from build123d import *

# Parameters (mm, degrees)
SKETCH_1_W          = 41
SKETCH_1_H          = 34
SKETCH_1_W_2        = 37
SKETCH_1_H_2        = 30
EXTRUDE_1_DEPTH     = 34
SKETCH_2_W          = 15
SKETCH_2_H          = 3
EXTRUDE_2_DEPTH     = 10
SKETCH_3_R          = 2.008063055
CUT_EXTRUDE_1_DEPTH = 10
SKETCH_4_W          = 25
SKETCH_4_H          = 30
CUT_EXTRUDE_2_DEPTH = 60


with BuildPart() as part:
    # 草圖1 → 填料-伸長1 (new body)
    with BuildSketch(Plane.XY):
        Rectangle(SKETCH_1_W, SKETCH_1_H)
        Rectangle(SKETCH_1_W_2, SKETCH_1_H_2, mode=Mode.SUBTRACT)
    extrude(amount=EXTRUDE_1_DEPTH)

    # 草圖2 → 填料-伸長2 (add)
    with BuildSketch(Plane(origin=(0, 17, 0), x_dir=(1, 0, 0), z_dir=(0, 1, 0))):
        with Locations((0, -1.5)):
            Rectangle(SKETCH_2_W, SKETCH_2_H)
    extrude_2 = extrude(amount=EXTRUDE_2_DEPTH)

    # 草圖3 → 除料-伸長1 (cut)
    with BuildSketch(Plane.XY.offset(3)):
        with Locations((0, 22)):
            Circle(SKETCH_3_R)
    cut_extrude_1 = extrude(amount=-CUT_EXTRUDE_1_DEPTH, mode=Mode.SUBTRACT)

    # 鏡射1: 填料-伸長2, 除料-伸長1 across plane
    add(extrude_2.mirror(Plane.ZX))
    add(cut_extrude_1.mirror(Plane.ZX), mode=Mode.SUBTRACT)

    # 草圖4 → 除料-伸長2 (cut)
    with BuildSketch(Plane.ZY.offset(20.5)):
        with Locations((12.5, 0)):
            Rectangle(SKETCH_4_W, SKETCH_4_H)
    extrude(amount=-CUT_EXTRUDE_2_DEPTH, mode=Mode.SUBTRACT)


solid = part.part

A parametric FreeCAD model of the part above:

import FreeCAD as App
import Part
import Sketcher

V = App.Vector

doc = App.newDocument("Part")
params = doc.addObject("Spreadsheet::Sheet", "Params")
for row, (alias, value) in enumerate([
    ("sketch1_width", "41 mm"),
    ("sketch1_width2", "37 mm"),
    ("sketch1_height", "34 mm"),
    ("sketch1_height2", "30 mm"),
    ("pad1_length", "34 mm"),
    ("sketch2_width", "15 mm"),
    ("sketch2_height", "3 mm"),
    ("pad2_length", "10 mm"),
    ("pocket1_length", "10 mm"),
    ("sketch4_width", "30 mm"),
    ("sketch4_height", "25 mm"),
    ("pocket2_length", "60 mm"),
], start=1):
    params.set(f"A{row}", alias)
    params.set(f"B{row}", "=" + value)
    params.setAlias(f"B{row}", alias)

body = doc.addObject("PartDesign::Body", "Body")

# Sketch on XY plane
sketch1 = doc.addObject("Sketcher::SketchObject", "Sketch")
body.addObject(sketch1)
sketch1.AttachmentSupport = (doc.XY_Plane, [""])
sketch1.MapMode = "FlatFace"
sketch1.addGeometry([
    Part.LineSegment(V(-20, 17, 0), V(-20, -17, 0)),  # 0
    Part.LineSegment(V(-20, -17, 0), V(20, -17, 0)),  # 1
    Part.LineSegment(V(20, -17, 0), V(20, 17, 0)),  # 2
    Part.LineSegment(V(20, 17, 0), V(-20, 17, 0)),  # 3
    Part.LineSegment(V(18, -15, 0), V(-18, -15, 0)),  # 4
    Part.LineSegment(V(-18, -15, 0), V(-18, 15, 0)),  # 5
    Part.LineSegment(V(-18, 15, 0), V(18, 15, 0)),  # 6
    Part.LineSegment(V(18, 15, 0), V(18, -15, 0)),  # 7
], False)
sketch1.addConstraint([
    Sketcher.Constraint("Coincident", 0, 2, 1, 1),
    Sketcher.Constraint("Coincident", 1, 2, 2, 1),
    Sketcher.Constraint("Coincident", 2, 2, 3, 1),
    Sketcher.Constraint("Coincident", 3, 2, 0, 1),
    Sketcher.Constraint("Coincident", 4, 2, 5, 1),
    Sketcher.Constraint("Coincident", 5, 2, 6, 1),
    Sketcher.Constraint("Coincident", 6, 2, 7, 1),
    Sketcher.Constraint("Coincident", 7, 2, 4, 1),
    Sketcher.Constraint("Vertical", 0),
    Sketcher.Constraint("Horizontal", 1),
    Sketcher.Constraint("Vertical", 2),
    Sketcher.Constraint("Horizontal", 3),
    Sketcher.Constraint("Horizontal", 4),
    Sketcher.Constraint("Vertical", 5),
    Sketcher.Constraint("Horizontal", 6),
    Sketcher.Constraint("Vertical", 7),
    Sketcher.Constraint("Symmetric", 0, 2, 2, 2, -1, 1),
    Sketcher.Constraint("Symmetric", 4, 2, 6, 2, -1, 1),
    Sketcher.Constraint("DistanceX", 1, 1, 1, 2, 41.0),
    Sketcher.Constraint("DistanceX", 4, 2, 4, 1, 37.0),
    Sketcher.Constraint("DistanceY", 0, 2, 0, 1, 34.0),
    Sketcher.Constraint("DistanceY", 5, 1, 5, 2, 30.0),
])
sketch1.setExpression("Constraints[18]", "Params.sketch1_width")
sketch1.setExpression("Constraints[19]", "Params.sketch1_width2")
sketch1.setExpression("Constraints[20]", "Params.sketch1_height")
sketch1.setExpression("Constraints[21]", "Params.sketch1_height2")
pad1 = doc.addObject("PartDesign::Pad", "Pad")
body.addObject(pad1)
pad1.Profile = sketch1
pad1.setExpression("Length", "Params.pad1_length")

# Sketch on XZ plane
sketch2 = doc.addObject("Sketcher::SketchObject", "Sketch001")
body.addObject(sketch2)
sketch2.AttachmentSupport = (doc.XZ_Plane, [""])
sketch2.MapMode = "FlatFace"
sketch2.AttachmentOffset = App.Placement(V(0, 0, -17), App.Rotation())
sketch2.addGeometry([
    Part.LineSegment(V(-7.5, 0, 0), V(-7.5, 3, 0)),
    Part.LineSegment(V(-7.5, 3, 0), V(7.5, 3, 0)),
    Part.LineSegment(V(7.5, 3, 0), V(7.5, 0, 0)),
    Part.LineSegment(V(7.5, 0, 0), V(-7.5, 0, 0)),
], False)
sketch2.addConstraint([
    Sketcher.Constraint("Coincident", 0, 2, 1, 1),
    Sketcher.Constraint("Coincident", 1, 2, 2, 1),
    Sketcher.Constraint("Coincident", 2, 2, 3, 1),
    Sketcher.Constraint("Coincident", 3, 2, 0, 1),
    Sketcher.Constraint("Vertical", 0),
    Sketcher.Constraint("Horizontal", 1),
    Sketcher.Constraint("Vertical", 2),
    Sketcher.Constraint("Horizontal", 3),
    Sketcher.Constraint("Symmetric", 2, 2, 3, 2, -1, 1),
    Sketcher.Constraint("DistanceX", 1, 1, 1, 2, 15.0),
    Sketcher.Constraint("DistanceY", 0, 1, 0, 2, 3.0),
])
sketch2.setExpression("Constraints[9]", "Params.sketch2_width")
sketch2.setExpression("Constraints[10]", "Params.sketch2_height")
pad2 = doc.addObject("PartDesign::Pad", "Pad001")
body.addObject(pad2)
pad2.Profile = sketch2
pad2.setExpression("Length", "Params.pad2_length")
pad2.Reversed = True

# Sketch on XY plane
sketch3 = doc.addObject("Sketcher::SketchObject", "Sketch002")
body.addObject(sketch3)
sketch3.AttachmentSupport = (doc.XY_Plane, [""])
sketch3.MapMode = "FlatFace"
sketch3.AttachmentOffset = App.Placement(V(0, 0, 3), App.Rotation())
sketch3.addGeometry(Part.Circle(V(0, 22, 0), V(0, 0, 1), 2), False)
sketch3.addConstraint([
    Sketcher.Constraint("PointOnObject", 0, 3, -2),
    Sketcher.Constraint("DistanceY", -1, 1, 0, 3, 22.0),
    Sketcher.Constraint("Diameter", 0, 4.016126),
])
pocket1 = doc.addObject("PartDesign::Pocket", "Pocket")
body.addObject(pocket1)
pocket1.Profile = sketch3
pocket1.setExpression("Length", "Params.pocket1_length")
doc.recompute()

mirrored = doc.addObject("PartDesign::Mirrored", "Mirrored")
body.addObject(mirrored)
mirrored.Originals = [pad2, pocket1]
mirrored.MirrorPlane = (doc.XZ_Plane, [""])
body.Tip = mirrored

# Sketch on YZ plane
sketch4 = doc.addObject("Sketcher::SketchObject", "Sketch003")
body.addObject(sketch4)
sketch4.AttachmentSupport = (doc.YZ_Plane, [""])
sketch4.MapMode = "FlatFace"
sketch4.AttachmentOffset = App.Placement(V(0, 0, -20.5), App.Rotation())
sketch4.addGeometry([
    Part.LineSegment(V(15, 0, 0), V(-15, 0, 0)),
    Part.LineSegment(V(-15, 0, 0), V(-15, 25, 0)),
    Part.LineSegment(V(-15, 25, 0), V(15, 25, 0)),
    Part.LineSegment(V(15, 25, 0), V(15, 0, 0)),
], False)
sketch4.addConstraint([
    Sketcher.Constraint("Coincident", 0, 2, 1, 1),
    Sketcher.Constraint("Coincident", 1, 2, 2, 1),
    Sketcher.Constraint("Coincident", 2, 2, 3, 1),
    Sketcher.Constraint("Coincident", 3, 2, 0, 1),
    Sketcher.Constraint("Horizontal", 0),
    Sketcher.Constraint("Vertical", 1),
    Sketcher.Constraint("Horizontal", 2),
    Sketcher.Constraint("Vertical", 3),
    Sketcher.Constraint("Symmetric", 0, 2, 3, 2, -1, 1),
    Sketcher.Constraint("DistanceX", 0, 2, 0, 1, 30.0),
    Sketcher.Constraint("DistanceY", 1, 1, 1, 2, 25.0),
])
sketch4.setExpression("Constraints[9]", "Params.sketch4_width")
sketch4.setExpression("Constraints[10]", "Params.sketch4_height")
pocket2 = doc.addObject("PartDesign::Pocket", "Pocket001")
body.addObject(pocket2)
pocket2.Profile = sketch4
pocket2.setExpression("Length", "Params.pocket2_length")
pocket2.Reversed = True

doc.recompute()
